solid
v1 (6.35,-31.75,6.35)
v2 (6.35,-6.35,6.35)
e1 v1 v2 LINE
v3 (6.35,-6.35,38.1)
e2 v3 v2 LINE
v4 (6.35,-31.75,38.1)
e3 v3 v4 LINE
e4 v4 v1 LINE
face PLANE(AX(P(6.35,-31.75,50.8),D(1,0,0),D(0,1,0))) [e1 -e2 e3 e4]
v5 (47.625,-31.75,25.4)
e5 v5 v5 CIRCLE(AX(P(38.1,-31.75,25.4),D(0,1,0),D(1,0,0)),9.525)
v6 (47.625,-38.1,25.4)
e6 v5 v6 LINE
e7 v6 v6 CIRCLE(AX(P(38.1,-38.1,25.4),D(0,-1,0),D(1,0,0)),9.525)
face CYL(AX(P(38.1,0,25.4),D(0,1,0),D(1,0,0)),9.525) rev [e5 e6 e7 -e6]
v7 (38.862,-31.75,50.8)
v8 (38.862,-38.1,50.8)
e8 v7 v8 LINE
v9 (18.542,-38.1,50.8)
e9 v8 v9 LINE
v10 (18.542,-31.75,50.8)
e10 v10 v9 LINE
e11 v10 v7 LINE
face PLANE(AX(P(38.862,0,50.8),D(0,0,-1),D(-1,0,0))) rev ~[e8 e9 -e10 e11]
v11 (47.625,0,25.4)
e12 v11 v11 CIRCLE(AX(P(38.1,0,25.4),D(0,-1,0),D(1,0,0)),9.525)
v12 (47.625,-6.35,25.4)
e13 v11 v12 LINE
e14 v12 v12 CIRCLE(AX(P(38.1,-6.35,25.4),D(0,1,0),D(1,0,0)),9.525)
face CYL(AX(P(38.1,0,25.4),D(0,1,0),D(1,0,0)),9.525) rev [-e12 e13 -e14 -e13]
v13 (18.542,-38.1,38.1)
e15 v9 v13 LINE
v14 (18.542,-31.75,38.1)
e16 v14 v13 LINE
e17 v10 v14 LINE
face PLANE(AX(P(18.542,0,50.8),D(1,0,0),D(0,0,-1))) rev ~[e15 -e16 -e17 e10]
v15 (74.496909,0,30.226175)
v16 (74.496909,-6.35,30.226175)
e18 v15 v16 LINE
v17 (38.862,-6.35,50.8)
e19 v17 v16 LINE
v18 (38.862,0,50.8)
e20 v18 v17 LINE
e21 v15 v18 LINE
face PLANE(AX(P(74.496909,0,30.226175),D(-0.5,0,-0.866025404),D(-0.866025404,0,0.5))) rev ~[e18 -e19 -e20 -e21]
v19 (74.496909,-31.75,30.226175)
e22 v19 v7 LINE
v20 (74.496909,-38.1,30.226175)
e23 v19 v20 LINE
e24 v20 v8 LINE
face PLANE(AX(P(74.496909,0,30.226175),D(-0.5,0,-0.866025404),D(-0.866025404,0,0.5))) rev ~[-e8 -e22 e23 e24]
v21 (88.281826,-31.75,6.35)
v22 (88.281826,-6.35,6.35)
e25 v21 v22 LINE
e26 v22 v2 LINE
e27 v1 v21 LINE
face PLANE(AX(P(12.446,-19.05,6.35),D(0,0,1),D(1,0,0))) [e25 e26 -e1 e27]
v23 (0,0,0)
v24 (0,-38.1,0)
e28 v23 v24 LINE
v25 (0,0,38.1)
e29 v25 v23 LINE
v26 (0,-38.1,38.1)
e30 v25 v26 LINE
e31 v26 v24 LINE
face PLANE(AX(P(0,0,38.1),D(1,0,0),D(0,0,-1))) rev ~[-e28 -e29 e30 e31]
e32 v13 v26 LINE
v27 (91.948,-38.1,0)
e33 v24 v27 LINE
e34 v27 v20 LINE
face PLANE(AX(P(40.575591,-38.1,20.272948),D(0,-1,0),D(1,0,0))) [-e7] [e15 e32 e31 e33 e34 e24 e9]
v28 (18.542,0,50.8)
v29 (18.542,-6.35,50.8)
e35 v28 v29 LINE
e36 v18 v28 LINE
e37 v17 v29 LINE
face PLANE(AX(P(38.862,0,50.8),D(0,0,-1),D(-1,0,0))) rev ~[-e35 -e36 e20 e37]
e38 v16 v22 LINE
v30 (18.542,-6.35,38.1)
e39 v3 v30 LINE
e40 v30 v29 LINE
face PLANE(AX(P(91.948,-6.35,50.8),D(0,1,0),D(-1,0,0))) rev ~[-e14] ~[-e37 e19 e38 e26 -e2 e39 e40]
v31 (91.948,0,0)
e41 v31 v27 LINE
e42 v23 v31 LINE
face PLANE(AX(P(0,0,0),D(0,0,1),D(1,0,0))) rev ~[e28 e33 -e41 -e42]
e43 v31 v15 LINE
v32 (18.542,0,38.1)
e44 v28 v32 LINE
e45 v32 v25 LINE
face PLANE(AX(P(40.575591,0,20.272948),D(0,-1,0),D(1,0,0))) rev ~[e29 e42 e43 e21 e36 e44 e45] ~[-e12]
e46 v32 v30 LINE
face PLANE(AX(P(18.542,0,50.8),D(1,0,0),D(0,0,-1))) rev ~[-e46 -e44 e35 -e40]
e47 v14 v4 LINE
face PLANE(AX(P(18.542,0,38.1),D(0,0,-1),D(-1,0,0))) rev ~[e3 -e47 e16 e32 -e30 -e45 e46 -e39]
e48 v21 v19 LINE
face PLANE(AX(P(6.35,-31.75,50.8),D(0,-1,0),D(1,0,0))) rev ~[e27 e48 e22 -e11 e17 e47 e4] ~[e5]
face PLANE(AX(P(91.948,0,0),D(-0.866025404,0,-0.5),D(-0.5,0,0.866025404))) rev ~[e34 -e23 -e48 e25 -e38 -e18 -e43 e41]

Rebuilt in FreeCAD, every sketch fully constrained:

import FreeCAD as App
import Part
import Sketcher
from FreeCAD import Vector
Q = App.Units.Quantity

doc = App.newDocument("Part")
params = doc.addObject("Spreadsheet::Sheet", "Params")
for row, (alias, value) in enumerate([
    ("sketch1_diameter", "0.75 in"),
    ("sketch1_width", "0.8 in"),
    ("sketch1_height", "1.5 in"),
    ("sketch1_height2", "0.5 in"),
    ("sketch1_width2", "3.62 in"),
    ("pad1_length", "1.5 in"),
    ("sketch2_height", "1 in"),
    ("sketch2_width", "3.37 in"),
    ("pocket1_length", "1.75 in"),
], start=1):
    params.set(f"A{row}", alias)
    params.set(f"B{row}", "=" + value)
    params.setAlias(f"B{row}", alias)

body = doc.addObject("PartDesign::Body", "Body")

# Sketch on XZ plane
sketch1 = body.newObject("Sketcher::SketchObject", "Sketch")
sketch1.AttachmentSupport = (doc.getObject("XZ_Plane"), [""])
sketch1.MapMode = "FlatFace"
sketch1.addGeometry(Part.LineSegment(Vector(0, 38, 0), Vector(0, 0, 0)), False)
sketch1.addGeometry(Part.LineSegment(Vector(0, 0, 0), Vector(92, 0, 0)), False)
sketch1.addGeometry(Part.LineSegment(Vector(92, 0, 0), Vector(74, 30, 0)), False)
sketch1.addGeometry(Part.LineSegment(Vector(74, 30, 0), Vector(39, 51, 0)), False)
sketch1.addGeometry(Part.LineSegment(Vector(39, 51, 0), Vector(19, 51, 0)), False)
sketch1.addGeometry(Part.LineSegment(Vector(19, 51, 0), Vector(19, 38, 0)), False)
sketch1.addGeometry(Part.LineSegment(Vector(19, 38, 0), Vector(0, 38, 0)), False)
sketch1.addGeometry(Part.Circle(Vector(38, 25, 0), Vector(0, 0, 1), 10), False)
sketch1.addConstraint(Sketcher.Constraint("Coincident", 0, 2, 1, 1))
sketch1.addConstraint(Sketcher.Constraint("Coincident", 1, 2, 2, 1))
sketch1.addConstraint(Sketcher.Constraint("Coincident", 2, 2, 3, 1))
sketch1.addConstraint(Sketcher.Constraint("Coincident", 3, 2, 4, 1))
sketch1.addConstraint(Sketcher.Constraint("Coincident", 4, 2, 5, 1))
sketch1.addConstraint(Sketcher.Constraint("Coincident", 5, 2, 6, 1))
sketch1.addConstraint(Sketcher.Constraint("Coincident", 6, 2, 0, 1))
sketch1.addConstraint(Sketcher.Constraint("Vertical", 0))
sketch1.addConstraint(Sketcher.Constraint("Horizontal", 1))
sketch1.addConstraint(Sketcher.Constraint("Horizontal", 4))
sketch1.addConstraint(Sketcher.Constraint("Vertical", 5))
sketch1.addConstraint(Sketcher.Constraint("Horizontal", 6))
sketch1.addConstraint(Sketcher.Constraint("Coincident", 0, 2, -1, 1))
sketch1.addConstraint(Sketcher.Constraint("Diameter", 7, Q("0.75 in")))
sketch1.addConstraint(Sketcher.Constraint("DistanceX", 4, 2, 4, 1, Q("0.8 in")))
sketch1.addConstraint(Sketcher.Constraint("DistanceY", 0, 2, 0, 1, Q("1.5 in")))
sketch1.addConstraint(Sketcher.Constraint("DistanceY", 5, 2, 5, 1, Q("0.5 in")))
sketch1.addConstraint(Sketcher.Constraint("DistanceY", -1, 1, 7, 3, Q("1 in")))
sketch1.addConstraint(Sketcher.Constraint("Angle", 2, Q("120 deg")))
sketch1.addConstraint(Sketcher.Constraint("Angle", 3, Q("150 deg")))
sketch1.addConstraint(Sketcher.Constraint("DistanceX", 1, 1, 1, 2, Q("3.62 in")))
sketch1.addConstraint(Sketcher.Constraint("DistanceX", 6, 2, 6, 1, Q("0.73 in")))
sketch1.addConstraint(Sketcher.Constraint("DistanceX", -1, 1, 7, 3, Q("1.5 in")))
sketch1.setExpression("Constraints[13]", "Params.sketch1_diameter")
sketch1.setExpression("Constraints[14]", "Params.sketch1_width")
sketch1.setExpression("Constraints[15]", "Params.sketch1_height")
sketch1.setExpression("Constraints[16]", "Params.sketch1_height2")
sketch1.setExpression("Constraints[20]", "Params.sketch1_width2")
pad1 = body.newObject("PartDesign::Pad", "Pad")
pad1.Profile = sketch1
pad1.setExpression("Length", "Params.pad1_length")

# Sketch on XY plane
sketch2 = body.newObject("Sketcher::SketchObject", "Sketch001")
sketch2.AttachmentSupport = (doc.getObject("XY_Plane"), [""])
sketch2.MapMode = "FlatFace"
sketch2.AttachmentOffset = App.Placement(Vector(0, 0, 2 * 25.4), App.Rotation())
sketch2.addGeometry(Part.LineSegment(Vector(6, -6, 0), Vector(6, -32, 0)), False)
sketch2.addGeometry(Part.LineSegment(Vector(6, -32, 0), Vector(92, -32, 0)), False)
sketch2.addGeometry(Part.LineSegment(Vector(92, -32, 0), Vector(92, -6, 0)), False)
sketch2.addGeometry(Part.LineSegment(Vector(92, -6, 0), Vector(6, -6, 0)), False)
sketch2.addConstraint(Sketcher.Constraint("Coincident", 0, 2, 1, 1))
sketch2.addConstraint(Sketcher.Constraint("Coincident", 1, 2, 2, 1))
sketch2.addConstraint(Sketcher.Constraint("Coincident", 2, 2, 3, 1))
sketch2.addConstraint(Sketcher.Constraint("Coincident", 3, 2, 0, 1))
sketch2.addConstraint(Sketcher.Constraint("Vertical", 0))
sketch2.addConstraint(Sketcher.Constraint("Horizontal", 1))
sketch2.addConstraint(Sketcher.Constraint("Vertical", 2))
sketch2.addConstraint(Sketcher.Constraint("Horizontal", 3))
sketch2.addConstraint(Sketcher.Constraint("DistanceY", 0, 2, 0, 1, Q("1 in")))
sketch2.addConstraint(Sketcher.Constraint("DistanceX", 1, 1, 1, 2, Q("3.37 in")))
sketch2.addConstraint(Sketcher.Constraint("DistanceX", -1, 1, 0, 2, Q("0.25 in")))
sketch2.addConstraint(Sketcher.Constraint("DistanceY", 0, 2, -1, 1, Q("1.25 in")))
sketch2.setExpression("Constraints[8]", "Params.sketch2_height")
sketch2.setExpression("Constraints[9]", "Params.sketch2_width")
pocket1 = body.newObject("PartDesign::Pocket", "Pocket")
pocket1.Profile = sketch2
pocket1.setExpression("Length", "Params.pocket1_length")

doc.recompute()
